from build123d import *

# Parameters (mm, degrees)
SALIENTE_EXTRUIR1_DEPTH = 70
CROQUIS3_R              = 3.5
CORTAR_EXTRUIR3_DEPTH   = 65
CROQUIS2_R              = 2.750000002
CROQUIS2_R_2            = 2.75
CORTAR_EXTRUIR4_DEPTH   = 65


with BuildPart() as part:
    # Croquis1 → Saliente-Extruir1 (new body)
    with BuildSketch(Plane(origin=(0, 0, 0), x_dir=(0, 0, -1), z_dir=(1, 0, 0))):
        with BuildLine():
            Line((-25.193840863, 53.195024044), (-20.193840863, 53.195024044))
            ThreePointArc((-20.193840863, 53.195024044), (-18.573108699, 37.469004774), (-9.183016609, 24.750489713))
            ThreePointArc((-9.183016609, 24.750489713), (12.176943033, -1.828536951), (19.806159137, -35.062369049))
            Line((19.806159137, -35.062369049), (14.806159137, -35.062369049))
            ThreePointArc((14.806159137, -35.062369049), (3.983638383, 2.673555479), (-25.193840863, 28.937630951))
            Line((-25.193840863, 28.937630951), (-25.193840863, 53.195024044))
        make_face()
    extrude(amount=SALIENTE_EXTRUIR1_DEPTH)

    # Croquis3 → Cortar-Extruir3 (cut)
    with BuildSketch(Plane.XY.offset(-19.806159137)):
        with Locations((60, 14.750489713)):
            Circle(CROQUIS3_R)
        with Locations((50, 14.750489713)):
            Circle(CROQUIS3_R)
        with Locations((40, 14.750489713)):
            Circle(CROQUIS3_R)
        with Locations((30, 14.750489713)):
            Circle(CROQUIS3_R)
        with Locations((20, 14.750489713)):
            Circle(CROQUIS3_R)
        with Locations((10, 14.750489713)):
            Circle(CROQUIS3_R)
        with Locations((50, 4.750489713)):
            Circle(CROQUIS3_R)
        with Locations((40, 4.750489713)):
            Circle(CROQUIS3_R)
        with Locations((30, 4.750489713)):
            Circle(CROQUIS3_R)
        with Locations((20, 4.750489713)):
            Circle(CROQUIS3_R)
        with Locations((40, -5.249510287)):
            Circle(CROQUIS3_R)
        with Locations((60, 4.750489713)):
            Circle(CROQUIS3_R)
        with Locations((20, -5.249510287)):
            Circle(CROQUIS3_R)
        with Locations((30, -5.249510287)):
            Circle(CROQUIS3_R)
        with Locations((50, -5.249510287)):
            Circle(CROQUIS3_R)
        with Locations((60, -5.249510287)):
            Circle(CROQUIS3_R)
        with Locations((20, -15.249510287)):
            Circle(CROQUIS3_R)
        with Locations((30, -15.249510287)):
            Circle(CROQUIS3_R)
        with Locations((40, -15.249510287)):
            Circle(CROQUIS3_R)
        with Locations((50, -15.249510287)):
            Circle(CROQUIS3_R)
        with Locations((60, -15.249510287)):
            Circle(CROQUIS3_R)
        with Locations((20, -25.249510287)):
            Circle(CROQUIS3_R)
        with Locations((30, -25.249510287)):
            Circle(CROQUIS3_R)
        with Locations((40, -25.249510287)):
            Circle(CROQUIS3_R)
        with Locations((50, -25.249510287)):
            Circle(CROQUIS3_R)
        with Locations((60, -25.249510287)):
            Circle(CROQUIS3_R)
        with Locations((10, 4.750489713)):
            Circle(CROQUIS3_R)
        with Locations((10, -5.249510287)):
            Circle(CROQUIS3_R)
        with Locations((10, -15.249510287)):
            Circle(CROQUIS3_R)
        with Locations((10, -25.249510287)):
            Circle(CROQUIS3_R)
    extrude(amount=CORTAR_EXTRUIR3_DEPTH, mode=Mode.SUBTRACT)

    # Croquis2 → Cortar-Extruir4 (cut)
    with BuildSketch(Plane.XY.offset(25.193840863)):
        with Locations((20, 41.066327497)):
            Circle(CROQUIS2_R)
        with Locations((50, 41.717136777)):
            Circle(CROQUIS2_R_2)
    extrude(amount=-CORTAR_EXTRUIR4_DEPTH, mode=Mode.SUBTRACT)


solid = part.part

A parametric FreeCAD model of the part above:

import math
import FreeCAD as App
import Part
import Sketcher

V = App.Vector
Q = App.Units.Quantity

doc = App.newDocument("Part")
body = doc.addObject("PartDesign::Body", "Body")

sketch1 = body.newObject("Sketcher::SketchObject", "Sketch")
sketch1.AttachmentSupport = (doc.getObject("YZ_Plane"), [""])
sketch1.MapMode = "FlatFace"
sketch1.addGeometry(Part.LineSegment(V(53, 20, 0), V(53, 25, 0)), False)
sketch1.addGeometry(Part.LineSegment(V(53, 25, 0), V(29, 25, 0)), False)
sketch1.addGeometry(Part.ArcOfCircle(Part.Circle(V(-35, 56, 0), V(0, 0, 1), 71), math.radians(-90), math.radians(-26)), False)
sketch1.addGeometry(Part.LineSegment(V(-35, -15, 0), V(-35, -20, 0)), False)
sketch1.addGeometry(Part.ArcOfCircle(Part.Circle(V(-35, 56, 0), V(0, 0, 1), 76), math.radians(-90), math.radians(-38)), False)
sketch1.addGeometry(Part.ArcOfCircle(Part.Circle(V(48, -9, 0), V(0, 0, 1), 30), math.radians(81), math.radians(142)), False)
sketch1.addConstraint(Sketcher.Constraint("Coincident", 0, 2, 1, 1))
sketch1.addConstraint(Sketcher.Constraint("Coincident", 1, 2, 2, 2))
sketch1.addConstraint(Sketcher.Constraint("Coincident", 2, 1, 3, 1))
sketch1.addConstraint(Sketcher.Constraint("Coincident", 3, 2, 4, 1))
sketch1.addConstraint(Sketcher.Constraint("Tangent", 4, 2, 5, 2))
sketch1.addConstraint(Sketcher.Constraint("Coincident", 5, 1, 0, 1))
sketch1.addConstraint(Sketcher.Constraint("Vertical", 0))
sketch1.addConstraint(Sketcher.Constraint("Horizontal", 1))
sketch1.addConstraint(Sketcher.Constraint("Vertical", 3))
sketch1.addConstraint(Sketcher.Constraint("Coincident", 4, 3, 2, 3))
sketch1.addConstraint(Sketcher.Constraint("Vertical", 4, 3, 2, 1))
sketch1.addConstraint(Sketcher.Constraint("Equal", 0, 3))
sketch1.addConstraint(Sketcher.Constraint("Radius", 5, Q("30 mm")))
sketch1.addConstraint(Sketcher.Constraint("Radius", 2, Q("71.2 mm")))
sketch1.addConstraint(Sketcher.Constraint("Radius", 4, Q("76.2 mm")))
sketch1.addConstraint(Sketcher.Constraint("DistanceX", 2, 3, 1, 2, Q("64 mm")))
sketch1.addConstraint(Sketcher.Constraint("DistanceX", 1, 2, 1, 1, Q("24.257393 mm")))
sketch1.addConstraint(Sketcher.Constraint("DistanceX", 2, 3, -1, 1, Q("35.062369 mm")))
sketch1.addConstraint(Sketcher.Constraint("DistanceY", -1, 1, 2, 3, Q("56.393841 mm")))
pad1 = body.newObject("PartDesign::Pad", "Pad")
pad1.Profile = sketch1
pad1.Length = 70

sketch2 = body.newObject("Sketcher::SketchObject", "Sketch001")
sketch2.AttachmentSupport = (doc.getObject("XY_Plane"), [""])
sketch2.MapMode = "FlatFace"
sketch2.AttachmentOffset = App.Placement(V(0, 0, -19.806159), App.Rotation())
sketch2.addGeometry(Part.Circle(V(60, 14.8, 0), V(0, 0, 1), 3.5), False)
sketch2.addGeometry(Part.Circle(V(50, 14.8, 0), V(0, 0, 1), 3.5), False)
sketch2.addGeometry(Part.Circle(V(40, 14.8, 0), V(0, 0, 1), 3.5), False)
sketch2.addGeometry(Part.Circle(V(30, 14.8, 0), V(0, 0, 1), 3.5), False)
sketch2.addGeometry(Part.Circle(V(20, 14.8, 0), V(0, 0, 1), 3.5), False)
sketch2.addGeometry(Part.Circle(V(10, 14.8, 0), V(0, 0, 1), 3.5), False)
sketch2.addGeometry(Part.Circle(V(50, 4.8, 0), V(0, 0, 1), 3.5), False)
sketch2.addGeometry(Part.Circle(V(40, 4.8, 0), V(0, 0, 1), 3.5), False)
sketch2.addGeometry(Part.Circle(V(30, 4.8, 0), V(0, 0, 1), 3.5), False)
sketch2.addGeometry(Part.Circle(V(20, 4.8, 0), V(0, 0, 1), 3.5), False)
sketch2.addGeometry(Part.Circle(V(40, -5.2, 0), V(0, 0, 1), 3.5), False)
sketch2.addGeometry(Part.Circle(V(60, 4.8, 0), V(0, 0, 1), 3.5), False)
sketch2.addGeometry(Part.Circle(V(20, -5.2, 0), V(0, 0, 1), 3.5), False)
sketch2.addGeometry(Part.Circle(V(30, -5.2, 0), V(0, 0, 1), 3.5), False)
sketch2.addGeometry(Part.Circle(V(50, -5.2, 0), V(0, 0, 1), 3.5), False)
sketch2.addGeometry(Part.Circle(V(60, -5.2, 0), V(0, 0, 1), 3.5), False)
sketch2.addGeometry(Part.Circle(V(20, -15.2, 0), V(0, 0, 1), 3.5), False)
sketch2.addGeometry(Part.Circle(V(30, -15.2, 0), V(0, 0, 1), 3.5), False)
sketch2.addGeometry(Part.Circle(V(40, -15.2, 0), V(0, 0, 1), 3.5), False)
sketch2.addGeometry(Part.Circle(V(50, -15.2, 0), V(0, 0, 1), 3.5), False)
sketch2.addGeometry(Part.Circle(V(60, -15.2, 0), V(0, 0, 1), 3.5), False)
sketch2.addGeometry(Part.Circle(V(20, -25.2, 0), V(0, 0, 1), 3.5), False)
sketch2.addGeometry(Part.Circle(V(30, -25.2, 0), V(0, 0, 1), 3.5), False)
sketch2.addGeometry(Part.Circle(V(40, -25.2, 0), V(0, 0, 1), 3.5), False)
sketch2.addGeometry(Part.Circle(V(50, -25.2, 0), V(0, 0, 1), 3.5), False)
sketch2.addGeometry(Part.Circle(V(60, -25.2, 0), V(0, 0, 1), 3.5), False)
sketch2.addGeometry(Part.Circle(V(10, 4.8, 0), V(0, 0, 1), 3.5), False)
sketch2.addGeometry(Part.Circle(V(10, -5.2, 0), V(0, 0, 1), 3.5), False)
sketch2.addGeometry(Part.Circle(V(10, -15.2, 0), V(0, 0, 1), 3.5), False)
sketch2.addGeometry(Part.Circle(V(10, -25.2, 0), V(0, 0, 1), 3.5), False)
sketch2.addConstraint(Sketcher.Constraint("Equal", 0, 1))
sketch2.addConstraint(Sketcher.Constraint("Equal", 1, 2))
sketch2.addConstraint(Sketcher.Constraint("Equal", 2, 3))
sketch2.addConstraint(Sketcher.Constraint("Equal", 3, 4))
sketch2.addConstraint(Sketcher.Constraint("Equal", 4, 5))
sketch2.addConstraint(Sketcher.Constraint("Equal", 5, 6))
sketch2.addConstraint(Sketcher.Constraint("Equal", 6, 7))
sketch2.addConstraint(Sketcher.Constraint("Equal", 7, 8))
sketch2.addConstraint(Sketcher.Constraint("Equal", 8, 9))
sketch2.addConstraint(Sketcher.Constraint("Equal", 9, 10))
sketch2.addConstraint(Sketcher.Constraint("Equal", 10, 11))
sketch2.addConstraint(Sketcher.Constraint("Equal", 11, 12))
sketch2.addConstraint(Sketcher.Constraint("Equal", 12, 13))
sketch2.addConstraint(Sketcher.Constraint("Equal", 13, 14))
sketch2.addConstraint(Sketcher.Constraint("Equal", 14, 15))
sketch2.addConstraint(Sketcher.Constraint("Equal", 15, 16))
sketch2.addConstraint(Sketcher.Constraint("Equal", 16, 17))
sketch2.addConstraint(Sketcher.Constraint("Equal", 17, 18))
sketch2.addConstraint(Sketcher.Constraint("Equal", 18, 19))
sketch2.addConstraint(Sketcher.Constraint("Equal", 19, 20))
sketch2.addConstraint(Sketcher.Constraint("Equal", 20, 21))
sketch2.addConstraint(Sketcher.Constraint("Equal", 21, 22))
sketch2.addConstraint(Sketcher.Constraint("Equal", 22, 23))
sketch2.addConstraint(Sketcher.Constraint("Equal", 23, 24))
sketch2.addConstraint(Sketcher.Constraint("Equal", 24, 25))
sketch2.addConstraint(Sketcher.Constraint("Equal", 25, 26))
sketch2.addConstraint(Sketcher.Constraint("Equal", 26, 27))
sketch2.addConstraint(Sketcher.Constraint("Equal", 27, 28))
sketch2.addConstraint(Sketcher.Constraint("Equal", 28, 29))
sketch2.addConstraint(Sketcher.Constraint("Horizontal", 0, 3, 1, 3))
sketch2.addConstraint(Sketcher.Constraint("Horizontal", 1, 3, 2, 3))
sketch2.addConstraint(Sketcher.Constraint("Horizontal", 2, 3, 3, 3))
sketch2.addConstraint(Sketcher.Constraint("Horizontal", 3, 3, 4, 3))
sketch2.addConstraint(Sketcher.Constraint("Horizontal", 4, 3, 5, 3))
sketch2.addConstraint(Sketcher.Constraint("Horizontal", 6, 3, 7, 3))
sketch2.addConstraint(Sketcher.Constraint("Horizontal", 7, 3, 8, 3))
sketch2.addConstraint(Sketcher.Constraint("Horizontal", 8, 3, 9, 3))
sketch2.addConstraint(Sketcher.Constraint("Horizontal", 9, 3, 11, 3))
sketch2.addConstraint(Sketcher.Constraint("Horizontal", 10, 3, 12, 3))
sketch2.addConstraint(Sketcher.Constraint("Horizontal", 12, 3, 13, 3))
sketch2.addConstraint(Sketcher.Constraint("Horizontal", 13, 3, 14, 3))
sketch2.addConstraint(Sketcher.Constraint("Horizontal", 14, 3, 15, 3))
sketch2.addConstraint(Sketcher.Constraint("Horizontal", 16, 3, 17, 3))
sketch2.addConstraint(Sketcher.Constraint("Horizontal", 17, 3, 18, 3))
sketch2.addConstraint(Sketcher.Constraint("Horizontal", 18, 3, 19, 3))
sketch2.addConstraint(Sketcher.Constraint("Horizontal", 19, 3, 20, 3))
sketch2.addConstraint(Sketcher.Constraint("Horizontal", 21, 3, 22, 3))
sketch2.addConstraint(Sketcher.Constraint("Horizontal", 22, 3, 23, 3))
sketch2.addConstraint(Sketcher.Constraint("Horizontal", 23, 3, 24, 3))
sketch2.addConstraint(Sketcher.Constraint("Horizontal", 24, 3, 25, 3))
sketch2.addConstraint(Sketcher.Constraint("Horizontal", 11, 3, 26, 3))
sketch2.addConstraint(Sketcher.Constraint("Horizontal", 15, 3, 27, 3))
sketch2.addConstraint(Sketcher.Constraint("Horizontal", 20, 3, 28, 3))
sketch2.addConstraint(Sketcher.Constraint("Horizontal", 25, 3, 29, 3))
sketch2.addConstraint(Sketcher.Constraint("Vertical", 1, 3, 6, 3))
sketch2.addConstraint(Sketcher.Constraint("Vertical", 2, 3, 7, 3))
sketch2.addConstraint(Sketcher.Constraint("Vertical", 3, 3, 8, 3))
sketch2.addConstraint(Sketcher.Constraint("Vertical", 4, 3, 9, 3))
sketch2.addConstraint(Sketcher.Constraint("Vertical", 7, 3, 10, 3))
sketch2.addConstraint(Sketcher.Constraint("Vertical", 0, 3, 11, 3))
sketch2.addConstraint(Sketcher.Constraint("Vertical", 9, 3, 12, 3))
sketch2.addConstraint(Sketcher.Constraint("Vertical", 8, 3, 13, 3))
sketch2.addConstraint(Sketcher.Constraint("Vertical", 6, 3, 14, 3))
sketch2.addConstraint(Sketcher.Constraint("Vertical", 11, 3, 15, 3))
sketch2.addConstraint(Sketcher.Constraint("Vertical", 12, 3, 16, 3))
sketch2.addConstraint(Sketcher.Constraint("Vertical", 13, 3, 17, 3))
sketch2.addConstraint(Sketcher.Constraint("Vertical", 10, 3, 18, 3))
sketch2.addConstraint(Sketcher.Constraint("Vertical", 14, 3, 19, 3))
sketch2.addConstraint(Sketcher.Constraint("Vertical", 15, 3, 20, 3))
sketch2.addConstraint(Sketcher.Constraint("Vertical", 16, 3, 21, 3))
sketch2.addConstraint(Sketcher.Constraint("Vertical", 17, 3, 22, 3))
sketch2.addConstraint(Sketcher.Constraint("Vertical", 18, 3, 23, 3))
sketch2.addConstraint(Sketcher.Constraint("Vertical", 19, 3, 24, 3))
sketch2.addConstraint(Sketcher.Constraint("Vertical", 20, 3, 25, 3))
sketch2.addConstraint(Sketcher.Constraint("Vertical", 5, 3, 26, 3))
sketch2.addConstraint(Sketcher.Constraint("Vertical", 26, 3, 27, 3))
sketch2.addConstraint(Sketcher.Constraint("Vertical", 27, 3, 28, 3))
sketch2.addConstraint(Sketcher.Constraint("Vertical", 28, 3, 29, 3))
sketch2.addConstraint(Sketcher.Constraint("Diameter", 0, Q("7 mm")))
sketch2.addConstraint(Sketcher.Constraint("DistanceX", -1, 1, 0, 3, Q("60 mm")))
sketch2.addConstraint(Sketcher.Constraint("DistanceX", -1, 1, 1, 3, Q("50 mm")))
sketch2.addConstraint(Sketcher.Constraint("DistanceX", -1, 1, 2, 3, Q("40 mm")))
sketch2.addConstraint(Sketcher.Constraint("DistanceX", -1, 1, 3, 3, Q("30 mm")))
sketch2.addConstraint(Sketcher.Constraint("DistanceX", -1, 1, 4, 3, Q("20 mm")))
sketch2.addConstraint(Sketcher.Constraint("DistanceX", -1, 1, 5, 3, Q("10 mm")))
sketch2.addConstraint(Sketcher.Constraint("DistanceY", 6, 3, 1, 3, Q("10 mm")))
sketch2.addConstraint(Sketcher.Constraint("DistanceY", 10, 3, 7, 3, Q("10 mm")))
sketch2.addConstraint(Sketcher.Constraint("DistanceY", 16, 3, 12, 3, Q("10 mm")))
sketch2.addConstraint(Sketcher.Constraint("DistanceY", 21, 3, 16, 3, Q("10 mm")))
sketch2.addConstraint(Sketcher.Constraint("DistanceY", -1, 1, 0, 3, Q("14.75049 mm")))
pocket1 = body.newObject("PartDesign::Pocket", "Pocket")
pocket1.Profile = sketch2
pocket1.Length = 65
pocket1.Reversed = True

sketch3 = body.newObject("Sketcher::SketchObject", "Sketch002")
sketch3.AttachmentSupport = (doc.getObject("XY_Plane"), [""])
sketch3.MapMode = "FlatFace"
sketch3.AttachmentOffset = App.Placement(V(0, 0, 25.193841), App.Rotation())
sketch3.addGeometry(Part.Circle(V(20, 41.1, 0), V(0, 0, 1), 2.8), False)
sketch3.addGeometry(Part.Circle(V(50, 41.7, 0), V(0, 0, 1), 2.8), False)
sketch3.addConstraint(Sketcher.Constraint("Equal", 0, 1))
sketch3.addConstraint(Sketcher.Constraint("Diameter", 0, Q("5.5 mm")))
sketch3.addConstraint(Sketcher.Constraint("DistanceX", -1, 1, 0, 3, Q("20 mm")))
sketch3.addConstraint(Sketcher.Constraint("DistanceX", -1, 1, 1, 3, Q("50 mm")))
sketch3.addConstraint(Sketcher.Constraint("DistanceY", 0, 3, 1, 3, Q("0.650809 mm")))
sketch3.addConstraint(Sketcher.Constraint("DistanceY", -1, 1, 0, 3, Q("41.066327 mm")))
pocket2 = body.newObject("PartDesign::Pocket", "Pocket001")
pocket2.Profile = sketch3
pocket2.Length = 65

doc.recompute()
